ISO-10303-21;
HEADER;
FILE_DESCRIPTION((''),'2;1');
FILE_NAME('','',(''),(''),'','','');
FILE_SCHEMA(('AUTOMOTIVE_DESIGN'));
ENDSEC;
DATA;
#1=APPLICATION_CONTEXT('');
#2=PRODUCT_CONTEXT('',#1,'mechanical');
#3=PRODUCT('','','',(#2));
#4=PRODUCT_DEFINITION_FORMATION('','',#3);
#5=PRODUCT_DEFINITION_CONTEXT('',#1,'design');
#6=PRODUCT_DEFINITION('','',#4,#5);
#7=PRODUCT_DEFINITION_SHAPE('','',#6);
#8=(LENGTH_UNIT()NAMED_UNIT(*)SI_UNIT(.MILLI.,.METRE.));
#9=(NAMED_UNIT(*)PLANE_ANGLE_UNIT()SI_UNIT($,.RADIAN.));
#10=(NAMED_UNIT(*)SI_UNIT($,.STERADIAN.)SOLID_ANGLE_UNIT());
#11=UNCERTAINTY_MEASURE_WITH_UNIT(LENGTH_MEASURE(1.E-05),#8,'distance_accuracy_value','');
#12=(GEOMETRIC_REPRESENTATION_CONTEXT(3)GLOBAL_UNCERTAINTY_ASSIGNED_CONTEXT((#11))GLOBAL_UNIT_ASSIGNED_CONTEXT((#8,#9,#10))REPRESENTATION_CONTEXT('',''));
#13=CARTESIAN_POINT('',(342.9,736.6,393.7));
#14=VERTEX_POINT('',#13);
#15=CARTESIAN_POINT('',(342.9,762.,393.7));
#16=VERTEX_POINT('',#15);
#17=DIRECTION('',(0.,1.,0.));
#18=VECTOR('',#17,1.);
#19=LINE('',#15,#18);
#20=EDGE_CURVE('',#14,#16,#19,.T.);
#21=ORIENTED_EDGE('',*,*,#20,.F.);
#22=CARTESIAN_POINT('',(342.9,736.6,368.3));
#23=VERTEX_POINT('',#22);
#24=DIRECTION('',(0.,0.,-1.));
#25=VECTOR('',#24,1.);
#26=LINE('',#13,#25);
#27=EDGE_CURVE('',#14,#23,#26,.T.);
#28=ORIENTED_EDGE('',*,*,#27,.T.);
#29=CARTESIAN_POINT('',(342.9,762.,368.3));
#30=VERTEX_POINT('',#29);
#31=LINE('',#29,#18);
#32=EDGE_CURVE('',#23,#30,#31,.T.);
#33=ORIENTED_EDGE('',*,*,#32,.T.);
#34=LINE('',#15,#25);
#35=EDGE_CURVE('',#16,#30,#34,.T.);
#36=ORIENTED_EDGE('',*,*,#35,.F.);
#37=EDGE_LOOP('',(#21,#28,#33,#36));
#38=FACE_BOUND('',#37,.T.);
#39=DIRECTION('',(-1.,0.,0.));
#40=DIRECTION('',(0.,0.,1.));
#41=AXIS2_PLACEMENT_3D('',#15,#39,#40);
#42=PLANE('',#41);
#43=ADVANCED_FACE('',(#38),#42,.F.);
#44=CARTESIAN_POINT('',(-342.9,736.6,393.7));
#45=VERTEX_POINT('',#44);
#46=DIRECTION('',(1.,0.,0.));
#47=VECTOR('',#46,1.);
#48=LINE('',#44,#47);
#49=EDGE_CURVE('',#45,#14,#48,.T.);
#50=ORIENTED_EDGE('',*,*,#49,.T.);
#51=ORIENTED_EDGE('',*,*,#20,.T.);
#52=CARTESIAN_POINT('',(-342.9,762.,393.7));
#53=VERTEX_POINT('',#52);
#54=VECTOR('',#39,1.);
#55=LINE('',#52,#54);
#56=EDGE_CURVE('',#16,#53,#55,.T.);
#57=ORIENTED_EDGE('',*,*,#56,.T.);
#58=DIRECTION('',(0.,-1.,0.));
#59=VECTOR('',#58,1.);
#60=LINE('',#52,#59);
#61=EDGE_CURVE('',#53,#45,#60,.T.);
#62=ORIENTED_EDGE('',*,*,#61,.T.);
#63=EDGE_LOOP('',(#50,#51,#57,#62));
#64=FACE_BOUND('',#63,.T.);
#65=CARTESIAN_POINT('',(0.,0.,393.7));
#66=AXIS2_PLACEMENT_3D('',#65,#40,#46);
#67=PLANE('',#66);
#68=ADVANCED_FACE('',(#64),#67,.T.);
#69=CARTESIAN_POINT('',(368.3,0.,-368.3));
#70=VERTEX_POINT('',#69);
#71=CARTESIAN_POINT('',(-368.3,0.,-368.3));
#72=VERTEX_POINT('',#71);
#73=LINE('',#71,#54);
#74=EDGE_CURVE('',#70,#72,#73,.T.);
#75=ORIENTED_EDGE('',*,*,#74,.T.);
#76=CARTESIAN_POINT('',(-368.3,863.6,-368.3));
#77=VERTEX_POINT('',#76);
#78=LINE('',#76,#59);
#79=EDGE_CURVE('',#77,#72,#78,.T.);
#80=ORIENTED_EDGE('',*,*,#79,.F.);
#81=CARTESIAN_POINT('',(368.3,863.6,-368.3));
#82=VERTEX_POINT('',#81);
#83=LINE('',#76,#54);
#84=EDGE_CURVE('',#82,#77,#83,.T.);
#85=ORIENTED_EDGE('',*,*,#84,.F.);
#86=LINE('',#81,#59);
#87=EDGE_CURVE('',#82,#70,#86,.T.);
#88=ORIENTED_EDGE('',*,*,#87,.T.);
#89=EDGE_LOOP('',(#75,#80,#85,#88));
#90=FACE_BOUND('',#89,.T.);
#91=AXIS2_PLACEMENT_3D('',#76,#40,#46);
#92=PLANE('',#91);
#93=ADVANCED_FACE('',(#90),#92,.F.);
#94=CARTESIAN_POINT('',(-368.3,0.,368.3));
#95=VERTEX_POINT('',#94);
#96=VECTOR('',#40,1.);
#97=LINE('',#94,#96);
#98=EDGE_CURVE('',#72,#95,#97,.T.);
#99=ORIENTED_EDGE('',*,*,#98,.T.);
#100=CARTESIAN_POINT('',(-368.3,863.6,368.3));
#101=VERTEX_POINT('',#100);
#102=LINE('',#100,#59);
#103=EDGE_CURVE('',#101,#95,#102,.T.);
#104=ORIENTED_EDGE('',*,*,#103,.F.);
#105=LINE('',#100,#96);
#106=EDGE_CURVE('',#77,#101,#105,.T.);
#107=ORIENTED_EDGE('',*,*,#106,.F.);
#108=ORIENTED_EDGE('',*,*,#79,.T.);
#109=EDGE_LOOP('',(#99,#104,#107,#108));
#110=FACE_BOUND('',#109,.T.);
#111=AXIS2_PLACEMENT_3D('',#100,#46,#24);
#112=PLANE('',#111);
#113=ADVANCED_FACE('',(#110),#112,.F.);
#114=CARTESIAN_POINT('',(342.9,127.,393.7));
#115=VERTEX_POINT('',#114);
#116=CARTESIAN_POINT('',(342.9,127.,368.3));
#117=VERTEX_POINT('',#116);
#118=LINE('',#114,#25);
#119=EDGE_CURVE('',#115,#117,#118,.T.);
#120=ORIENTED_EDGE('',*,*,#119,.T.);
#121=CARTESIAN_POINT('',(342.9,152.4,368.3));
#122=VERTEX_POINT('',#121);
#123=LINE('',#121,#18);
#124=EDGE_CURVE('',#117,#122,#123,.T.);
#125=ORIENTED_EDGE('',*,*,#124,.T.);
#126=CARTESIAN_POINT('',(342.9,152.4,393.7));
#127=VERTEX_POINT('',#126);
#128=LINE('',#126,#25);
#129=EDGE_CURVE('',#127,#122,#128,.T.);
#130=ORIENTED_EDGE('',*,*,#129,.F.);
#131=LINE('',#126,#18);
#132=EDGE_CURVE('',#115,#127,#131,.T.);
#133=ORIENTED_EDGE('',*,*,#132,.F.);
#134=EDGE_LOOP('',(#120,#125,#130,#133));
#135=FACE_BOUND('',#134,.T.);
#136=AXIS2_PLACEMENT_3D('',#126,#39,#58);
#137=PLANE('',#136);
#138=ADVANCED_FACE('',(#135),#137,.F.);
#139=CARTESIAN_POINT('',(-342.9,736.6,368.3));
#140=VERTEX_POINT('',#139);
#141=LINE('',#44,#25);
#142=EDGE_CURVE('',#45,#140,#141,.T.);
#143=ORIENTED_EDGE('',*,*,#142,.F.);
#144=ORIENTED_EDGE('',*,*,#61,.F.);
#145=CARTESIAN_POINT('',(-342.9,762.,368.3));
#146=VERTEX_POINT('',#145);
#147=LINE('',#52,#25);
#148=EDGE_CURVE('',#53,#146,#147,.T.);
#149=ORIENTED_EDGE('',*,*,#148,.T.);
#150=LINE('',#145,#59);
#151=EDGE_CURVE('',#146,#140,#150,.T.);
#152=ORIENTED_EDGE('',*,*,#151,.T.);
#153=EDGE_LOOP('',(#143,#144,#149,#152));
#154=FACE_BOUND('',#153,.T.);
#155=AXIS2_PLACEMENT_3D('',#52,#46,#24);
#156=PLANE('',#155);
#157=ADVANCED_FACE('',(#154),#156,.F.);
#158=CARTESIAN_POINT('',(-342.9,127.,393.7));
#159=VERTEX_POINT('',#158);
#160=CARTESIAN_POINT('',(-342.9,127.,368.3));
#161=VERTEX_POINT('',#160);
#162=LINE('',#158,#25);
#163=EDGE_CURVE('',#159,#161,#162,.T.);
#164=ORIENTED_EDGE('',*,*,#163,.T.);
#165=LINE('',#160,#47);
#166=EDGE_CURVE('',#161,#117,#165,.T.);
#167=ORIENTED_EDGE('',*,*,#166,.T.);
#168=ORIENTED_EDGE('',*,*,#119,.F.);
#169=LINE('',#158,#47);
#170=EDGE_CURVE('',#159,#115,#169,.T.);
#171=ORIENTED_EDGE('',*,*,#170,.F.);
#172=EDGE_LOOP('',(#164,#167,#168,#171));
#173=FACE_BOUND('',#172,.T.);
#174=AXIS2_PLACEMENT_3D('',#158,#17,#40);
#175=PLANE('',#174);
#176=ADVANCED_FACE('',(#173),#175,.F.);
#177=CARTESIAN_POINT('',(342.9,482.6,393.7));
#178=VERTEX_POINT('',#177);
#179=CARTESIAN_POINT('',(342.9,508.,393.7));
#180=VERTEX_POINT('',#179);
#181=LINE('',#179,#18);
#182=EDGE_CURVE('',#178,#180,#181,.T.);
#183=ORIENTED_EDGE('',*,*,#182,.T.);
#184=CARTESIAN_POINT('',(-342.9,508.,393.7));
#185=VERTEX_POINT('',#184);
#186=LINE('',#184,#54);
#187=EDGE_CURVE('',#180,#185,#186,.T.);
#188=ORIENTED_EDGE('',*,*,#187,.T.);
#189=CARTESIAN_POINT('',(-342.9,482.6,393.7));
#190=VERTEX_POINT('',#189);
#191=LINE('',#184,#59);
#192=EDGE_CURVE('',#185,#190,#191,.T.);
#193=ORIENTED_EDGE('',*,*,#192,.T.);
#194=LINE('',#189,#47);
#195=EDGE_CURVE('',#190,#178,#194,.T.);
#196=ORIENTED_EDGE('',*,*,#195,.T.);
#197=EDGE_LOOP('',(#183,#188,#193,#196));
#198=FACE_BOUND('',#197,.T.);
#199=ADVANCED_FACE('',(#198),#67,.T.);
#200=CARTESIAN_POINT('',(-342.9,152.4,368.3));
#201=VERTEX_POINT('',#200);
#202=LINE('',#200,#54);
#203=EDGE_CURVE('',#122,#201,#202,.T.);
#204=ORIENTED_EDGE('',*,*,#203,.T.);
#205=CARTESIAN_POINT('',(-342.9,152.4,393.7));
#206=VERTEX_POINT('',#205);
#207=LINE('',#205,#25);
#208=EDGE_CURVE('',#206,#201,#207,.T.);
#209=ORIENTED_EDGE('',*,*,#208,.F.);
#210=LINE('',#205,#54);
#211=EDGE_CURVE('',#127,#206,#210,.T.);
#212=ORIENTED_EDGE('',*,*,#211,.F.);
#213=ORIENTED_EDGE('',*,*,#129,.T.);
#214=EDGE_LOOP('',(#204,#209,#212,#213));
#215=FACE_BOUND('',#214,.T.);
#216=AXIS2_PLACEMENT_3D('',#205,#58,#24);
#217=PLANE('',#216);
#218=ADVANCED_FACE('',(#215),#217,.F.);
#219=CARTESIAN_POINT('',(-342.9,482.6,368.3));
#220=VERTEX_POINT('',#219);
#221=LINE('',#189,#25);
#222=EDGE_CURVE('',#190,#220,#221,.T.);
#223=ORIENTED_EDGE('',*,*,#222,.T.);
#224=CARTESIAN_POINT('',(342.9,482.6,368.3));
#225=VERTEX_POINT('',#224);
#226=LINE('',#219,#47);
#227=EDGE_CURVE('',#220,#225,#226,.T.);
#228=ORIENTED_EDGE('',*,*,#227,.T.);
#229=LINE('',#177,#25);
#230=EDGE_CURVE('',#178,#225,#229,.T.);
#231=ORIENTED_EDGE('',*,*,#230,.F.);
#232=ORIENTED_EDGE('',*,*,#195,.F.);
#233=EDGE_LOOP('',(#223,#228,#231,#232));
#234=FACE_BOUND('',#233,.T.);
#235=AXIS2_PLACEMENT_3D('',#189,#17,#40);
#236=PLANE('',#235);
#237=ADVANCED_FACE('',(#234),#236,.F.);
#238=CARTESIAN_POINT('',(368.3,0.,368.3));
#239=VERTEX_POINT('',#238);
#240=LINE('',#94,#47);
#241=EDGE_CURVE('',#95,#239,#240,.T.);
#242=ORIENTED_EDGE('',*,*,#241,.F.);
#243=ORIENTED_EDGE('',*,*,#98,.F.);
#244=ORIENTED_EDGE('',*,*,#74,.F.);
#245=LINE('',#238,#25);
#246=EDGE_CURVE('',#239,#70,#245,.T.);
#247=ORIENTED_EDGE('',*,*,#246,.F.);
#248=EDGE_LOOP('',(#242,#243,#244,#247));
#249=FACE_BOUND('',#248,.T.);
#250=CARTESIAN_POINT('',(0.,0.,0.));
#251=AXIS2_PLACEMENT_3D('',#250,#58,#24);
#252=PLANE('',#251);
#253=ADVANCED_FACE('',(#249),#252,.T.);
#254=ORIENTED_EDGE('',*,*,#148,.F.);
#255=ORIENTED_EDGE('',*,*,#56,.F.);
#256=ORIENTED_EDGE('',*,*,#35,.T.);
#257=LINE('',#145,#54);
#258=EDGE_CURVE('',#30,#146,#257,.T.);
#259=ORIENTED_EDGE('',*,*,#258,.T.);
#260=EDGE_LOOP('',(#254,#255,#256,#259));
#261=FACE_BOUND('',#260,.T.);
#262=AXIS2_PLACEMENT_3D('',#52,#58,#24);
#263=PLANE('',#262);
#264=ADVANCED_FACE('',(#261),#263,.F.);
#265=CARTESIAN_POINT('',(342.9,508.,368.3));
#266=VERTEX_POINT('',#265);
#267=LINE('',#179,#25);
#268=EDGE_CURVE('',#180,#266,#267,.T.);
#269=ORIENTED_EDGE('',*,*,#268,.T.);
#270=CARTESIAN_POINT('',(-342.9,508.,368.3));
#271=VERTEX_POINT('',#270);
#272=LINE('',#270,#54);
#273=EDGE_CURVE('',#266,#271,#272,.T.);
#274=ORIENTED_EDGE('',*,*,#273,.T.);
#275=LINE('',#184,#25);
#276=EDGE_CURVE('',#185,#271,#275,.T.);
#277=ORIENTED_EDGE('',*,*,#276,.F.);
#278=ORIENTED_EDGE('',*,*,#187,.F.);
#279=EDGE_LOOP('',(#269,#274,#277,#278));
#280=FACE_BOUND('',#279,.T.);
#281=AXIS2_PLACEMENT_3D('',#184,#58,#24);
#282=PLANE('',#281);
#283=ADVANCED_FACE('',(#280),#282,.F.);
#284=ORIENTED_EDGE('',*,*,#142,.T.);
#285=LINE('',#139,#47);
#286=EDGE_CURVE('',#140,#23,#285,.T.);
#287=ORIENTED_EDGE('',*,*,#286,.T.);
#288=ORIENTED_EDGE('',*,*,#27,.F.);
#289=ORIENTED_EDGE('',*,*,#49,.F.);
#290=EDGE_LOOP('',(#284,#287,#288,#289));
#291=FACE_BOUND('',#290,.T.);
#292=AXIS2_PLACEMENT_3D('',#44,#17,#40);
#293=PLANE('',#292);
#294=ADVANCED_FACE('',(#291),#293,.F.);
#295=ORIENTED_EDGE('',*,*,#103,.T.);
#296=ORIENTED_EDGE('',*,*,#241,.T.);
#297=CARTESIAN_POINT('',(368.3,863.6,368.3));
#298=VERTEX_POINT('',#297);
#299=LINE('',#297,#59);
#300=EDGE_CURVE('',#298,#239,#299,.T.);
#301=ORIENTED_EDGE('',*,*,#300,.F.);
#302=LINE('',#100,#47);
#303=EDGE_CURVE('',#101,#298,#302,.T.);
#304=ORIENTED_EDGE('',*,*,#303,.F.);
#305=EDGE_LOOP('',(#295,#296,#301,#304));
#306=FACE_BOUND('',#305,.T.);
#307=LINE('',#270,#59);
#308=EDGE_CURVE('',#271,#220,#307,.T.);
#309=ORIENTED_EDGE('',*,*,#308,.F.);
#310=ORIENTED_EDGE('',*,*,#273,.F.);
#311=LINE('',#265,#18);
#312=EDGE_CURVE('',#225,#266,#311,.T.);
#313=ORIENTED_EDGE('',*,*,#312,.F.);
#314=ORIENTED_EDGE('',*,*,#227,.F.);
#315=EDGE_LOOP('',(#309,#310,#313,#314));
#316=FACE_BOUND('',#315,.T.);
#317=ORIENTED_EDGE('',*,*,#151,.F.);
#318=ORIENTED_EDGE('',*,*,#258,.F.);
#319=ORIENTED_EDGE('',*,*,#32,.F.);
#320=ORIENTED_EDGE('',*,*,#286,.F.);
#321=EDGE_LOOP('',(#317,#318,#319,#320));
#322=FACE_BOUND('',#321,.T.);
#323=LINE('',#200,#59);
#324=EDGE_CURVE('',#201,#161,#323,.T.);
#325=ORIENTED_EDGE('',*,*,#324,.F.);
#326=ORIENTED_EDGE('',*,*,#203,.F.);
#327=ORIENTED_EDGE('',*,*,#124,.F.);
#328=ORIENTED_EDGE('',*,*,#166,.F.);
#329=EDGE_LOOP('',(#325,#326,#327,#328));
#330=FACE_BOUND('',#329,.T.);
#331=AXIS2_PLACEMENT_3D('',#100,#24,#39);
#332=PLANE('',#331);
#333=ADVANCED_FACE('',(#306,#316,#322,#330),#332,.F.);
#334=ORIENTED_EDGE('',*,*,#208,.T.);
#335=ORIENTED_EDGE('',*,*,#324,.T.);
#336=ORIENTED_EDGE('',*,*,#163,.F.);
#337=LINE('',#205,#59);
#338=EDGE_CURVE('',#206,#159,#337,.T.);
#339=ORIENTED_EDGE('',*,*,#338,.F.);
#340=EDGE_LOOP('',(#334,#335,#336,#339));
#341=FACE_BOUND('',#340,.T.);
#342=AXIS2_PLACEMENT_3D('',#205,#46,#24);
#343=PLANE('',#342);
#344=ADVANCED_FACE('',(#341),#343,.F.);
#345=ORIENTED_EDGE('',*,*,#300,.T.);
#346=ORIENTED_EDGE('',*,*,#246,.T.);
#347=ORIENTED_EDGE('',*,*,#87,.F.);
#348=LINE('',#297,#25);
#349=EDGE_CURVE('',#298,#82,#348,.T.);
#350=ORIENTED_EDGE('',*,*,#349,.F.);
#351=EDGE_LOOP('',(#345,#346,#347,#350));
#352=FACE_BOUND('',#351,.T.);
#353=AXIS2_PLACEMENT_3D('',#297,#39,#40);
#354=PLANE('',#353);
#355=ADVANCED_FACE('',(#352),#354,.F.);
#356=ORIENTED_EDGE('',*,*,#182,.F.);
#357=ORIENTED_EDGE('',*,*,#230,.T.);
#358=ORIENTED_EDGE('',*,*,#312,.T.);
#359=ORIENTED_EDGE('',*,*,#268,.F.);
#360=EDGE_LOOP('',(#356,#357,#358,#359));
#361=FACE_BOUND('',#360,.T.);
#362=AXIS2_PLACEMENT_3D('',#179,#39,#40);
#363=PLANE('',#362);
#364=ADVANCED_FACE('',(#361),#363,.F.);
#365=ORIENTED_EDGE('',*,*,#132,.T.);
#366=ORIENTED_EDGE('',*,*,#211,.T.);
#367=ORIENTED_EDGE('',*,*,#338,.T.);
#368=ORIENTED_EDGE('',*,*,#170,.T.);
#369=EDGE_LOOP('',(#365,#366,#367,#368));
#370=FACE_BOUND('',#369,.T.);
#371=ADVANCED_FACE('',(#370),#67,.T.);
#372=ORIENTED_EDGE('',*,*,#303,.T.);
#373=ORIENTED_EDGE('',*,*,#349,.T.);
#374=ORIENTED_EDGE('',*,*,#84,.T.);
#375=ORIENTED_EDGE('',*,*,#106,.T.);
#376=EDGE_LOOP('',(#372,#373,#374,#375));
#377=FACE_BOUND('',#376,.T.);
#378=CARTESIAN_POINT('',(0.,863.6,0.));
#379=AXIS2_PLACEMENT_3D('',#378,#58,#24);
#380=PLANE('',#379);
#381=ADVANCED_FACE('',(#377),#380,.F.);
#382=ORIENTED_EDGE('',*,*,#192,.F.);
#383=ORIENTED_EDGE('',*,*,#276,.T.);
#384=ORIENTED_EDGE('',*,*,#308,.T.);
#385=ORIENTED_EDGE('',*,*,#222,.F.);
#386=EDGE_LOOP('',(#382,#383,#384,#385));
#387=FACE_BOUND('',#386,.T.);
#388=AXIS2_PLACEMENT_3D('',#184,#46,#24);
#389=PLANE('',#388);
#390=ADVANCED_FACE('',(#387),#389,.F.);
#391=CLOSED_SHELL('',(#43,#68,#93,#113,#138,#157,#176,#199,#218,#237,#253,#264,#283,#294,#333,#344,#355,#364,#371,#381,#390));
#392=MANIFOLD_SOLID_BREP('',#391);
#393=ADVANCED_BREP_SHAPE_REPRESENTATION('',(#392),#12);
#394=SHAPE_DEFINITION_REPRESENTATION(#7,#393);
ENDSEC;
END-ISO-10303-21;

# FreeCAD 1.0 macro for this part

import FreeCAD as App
import Part
import Sketcher
from FreeCAD import Vector
Q = App.Units.Quantity


def add_polygon(sketch, points):
    """Adds a closed chain of lines whose ends are joined by coincident constraints."""
    first, n = sketch.GeometryCount, len(points)
    for a, b in zip(points, points[1:] + points[:1]):
        sketch.addGeometry(Part.LineSegment(App.Vector(*a, 0), App.Vector(*b, 0)), False)
    for i in range(n):
        sketch.addConstraint(Sketcher.Constraint("Coincident", first + i, 2, first + (i + 1) % n, 1))

doc = App.newDocument("Part")
body = doc.addObject("PartDesign::Body", "Body")

sketch1 = doc.addObject("Sketcher::SketchObject", "Sketch")
body.addObject(sketch1)
sketch1.AttachmentSupport = (doc.XZ_Plane, [""])
sketch1.MapMode = "FlatFace"
add_polygon(sketch1, [(-368.3, -368.3), (-368.3, 368.3), (368.3, 368.3), (368.3, -368.3)])
sketch1.addConstraint(Sketcher.Constraint("Vertical", 0))
sketch1.addConstraint(Sketcher.Constraint("Horizontal", 1))
sketch1.addConstraint(Sketcher.Constraint("Vertical", 2))
sketch1.addConstraint(Sketcher.Constraint("Horizontal", 3))
sketch1.addConstraint(Sketcher.Constraint("Symmetric", 0, 2, 2, 2, -1, 1))
sketch1.addConstraint(Sketcher.Constraint("Equal", 3, 0))
sketch1.addConstraint(Sketcher.Constraint("DistanceX", 1, 1, 1, 2, Q("29 in")))
pad1 = doc.addObject("PartDesign::Pad", "Pad")
body.addObject(pad1)
pad1.Profile = sketch1
pad1.Length = Q("34 in")
pad1.Reversed = True

sketch2 = doc.addObject("Sketcher::SketchObject", "Sketch001")
body.addObject(sketch2)
sketch2.AttachmentSupport = (doc.XY_Plane, [""])
sketch2.MapMode = "FlatFace"
sketch2.AttachmentOffset = App.Placement(Vector(0, 0, 14.5 * 25.4), App.Rotation())
add_polygon(sketch2, [(-342.9, 762), (-342.9, 736.6), (342.9, 736.6), (342.9, 762)])
add_polygon(sketch2, [(-342.9, 508), (-342.9, 482.6), (342.9, 482.6), (342.9, 508)])
add_polygon(sketch2, [(-342.9, 152.4), (-342.9, 127), (342.9, 127), (342.9, 152.4)])
sketch2.addConstraint(Sketcher.Constraint("Vertical", 0))
sketch2.addConstraint(Sketcher.Constraint("Horizontal", 1))
sketch2.addConstraint(Sketcher.Constraint("Vertical", 2))
sketch2.addConstraint(Sketcher.Constraint("Horizontal", 3))
sketch2.addConstraint(Sketcher.Constraint("Vertical", 4))
sketch2.addConstraint(Sketcher.Constraint("Horizontal", 5))
sketch2.addConstraint(Sketcher.Constraint("Vertical", 6))
sketch2.addConstraint(Sketcher.Constraint("Horizontal", 7))
sketch2.addConstraint(Sketcher.Constraint("Vertical", 8))
sketch2.addConstraint(Sketcher.Constraint("Horizontal", 9))
sketch2.addConstraint(Sketcher.Constraint("Vertical", 10))
sketch2.addConstraint(Sketcher.Constraint("Horizontal", 11))
sketch2.addConstraint(Sketcher.Constraint("Vertical", 3, 2, 4, 2))
sketch2.addConstraint(Sketcher.Constraint("Vertical", 2, 2, 5, 2))
sketch2.addConstraint(Sketcher.Constraint("Vertical", 7, 2, 8, 2))
sketch2.addConstraint(Sketcher.Constraint("Vertical", 6, 2, 9, 2))
sketch2.addConstraint(Sketcher.Constraint("Equal", 2, 4))
sketch2.addConstraint(Sketcher.Constraint("Equal", 6, 8))
sketch2.addConstraint(Sketcher.Constraint("DistanceX", 1, 1, 1, 2, Q("27 in")))
sketch2.addConstraint(Sketcher.Constraint("DistanceY", 0, 2, 0, 1, Q("1 in")))
sketch2.addConstraint(Sketcher.Constraint("DistanceY", -1, 1, 0, 2, Q("29 in")))
sketch2.addConstraint(Sketcher.Constraint("DistanceY", -1, 1, 4, 2, Q("19 in")))
sketch2.addConstraint(Sketcher.Constraint("DistanceY", -1, 1, 8, 2, Q("5 in")))
sketch2.addConstraint(Sketcher.Constraint("DistanceX", 0, 2, -1, 1, Q("13.5 in")))
pad2 = doc.addObject("PartDesign::Pad", "Pad001")
body.addObject(pad2)
pad2.Profile = sketch2
pad2.Length = Q("1 in")

doc.recompute()
